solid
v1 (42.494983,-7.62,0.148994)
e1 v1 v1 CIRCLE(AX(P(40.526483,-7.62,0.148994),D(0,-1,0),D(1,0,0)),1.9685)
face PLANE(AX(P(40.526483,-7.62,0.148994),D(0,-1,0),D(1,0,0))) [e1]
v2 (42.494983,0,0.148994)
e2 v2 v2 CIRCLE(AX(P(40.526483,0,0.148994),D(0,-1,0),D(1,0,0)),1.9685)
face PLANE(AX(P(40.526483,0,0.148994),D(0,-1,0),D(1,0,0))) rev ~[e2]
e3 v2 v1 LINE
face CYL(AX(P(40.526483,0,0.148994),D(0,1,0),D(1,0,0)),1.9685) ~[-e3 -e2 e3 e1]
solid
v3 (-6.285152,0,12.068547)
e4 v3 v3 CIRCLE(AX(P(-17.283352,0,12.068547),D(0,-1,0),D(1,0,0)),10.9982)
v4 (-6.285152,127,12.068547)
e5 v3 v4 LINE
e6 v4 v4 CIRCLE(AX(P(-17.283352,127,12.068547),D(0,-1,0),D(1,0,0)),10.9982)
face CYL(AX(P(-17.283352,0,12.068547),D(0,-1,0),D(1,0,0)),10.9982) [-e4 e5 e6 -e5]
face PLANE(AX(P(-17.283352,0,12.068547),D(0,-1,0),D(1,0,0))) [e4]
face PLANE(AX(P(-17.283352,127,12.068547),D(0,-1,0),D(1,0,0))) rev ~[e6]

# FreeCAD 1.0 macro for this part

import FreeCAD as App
import Part
import Sketcher
Q = App.Units.Quantity

doc = App.newDocument("Part")
body = doc.addObject("PartDesign::Body", "Body")

# Sketch on XZ plane
sketch1 = body.newObject("Sketcher::SketchObject", "Sketch")
sketch1.AttachmentSupport = (doc.getObject("XZ_Plane"), [""])
sketch1.MapMode = "FlatFace"
sketch1.addGeometry(Part.Circle(App.Vector(-17.283352, 12.068547, 0), App.Vector(0, 0, 1), 10.9982), False)
sketch1.addConstraint([
    Sketcher.Constraint("Diameter", 0, Q("0.866 in")),
    Sketcher.Constraint("DistanceX", 0, 3, -1, 1, Q("17.283352 mm")),
    Sketcher.Constraint("DistanceY", -1, 1, 0, 3, Q("12.068547 mm")),
])
pad1 = body.newObject("PartDesign::Pad", "Pad")
pad1.Profile = sketch1
pad1.Length = Q("5 in")
pad1.Reversed = True
body2 = doc.addObject("PartDesign::Body", "Body001")

# Sketch on XZ plane
sketch2 = body2.newObject("Sketcher::SketchObject", "Sketch001")
sketch2.AttachmentSupport = (doc.getObject("XZ_Plane001"), [""])
sketch2.MapMode = "FlatFace"
sketch2.addGeometry(Part.Circle(App.Vector(40.526483, 0.148994, 0), App.Vector(0, 0, 1), 1.9685), False)
sketch2.addConstraint([
    Sketcher.Constraint("Diameter", 0, Q("0.155 in")),
    Sketcher.Constraint("DistanceX", -1, 1, 0, 3, Q("40.526483 mm")),
    Sketcher.Constraint("DistanceY", -1, 1, 0, 3, Q("0.148994 mm")),
])
pad2 = body2.newObject("PartDesign::Pad", "Pad001")
pad2.Profile = sketch2
pad2.Length = Q("0.3 in")

doc.recompute()
